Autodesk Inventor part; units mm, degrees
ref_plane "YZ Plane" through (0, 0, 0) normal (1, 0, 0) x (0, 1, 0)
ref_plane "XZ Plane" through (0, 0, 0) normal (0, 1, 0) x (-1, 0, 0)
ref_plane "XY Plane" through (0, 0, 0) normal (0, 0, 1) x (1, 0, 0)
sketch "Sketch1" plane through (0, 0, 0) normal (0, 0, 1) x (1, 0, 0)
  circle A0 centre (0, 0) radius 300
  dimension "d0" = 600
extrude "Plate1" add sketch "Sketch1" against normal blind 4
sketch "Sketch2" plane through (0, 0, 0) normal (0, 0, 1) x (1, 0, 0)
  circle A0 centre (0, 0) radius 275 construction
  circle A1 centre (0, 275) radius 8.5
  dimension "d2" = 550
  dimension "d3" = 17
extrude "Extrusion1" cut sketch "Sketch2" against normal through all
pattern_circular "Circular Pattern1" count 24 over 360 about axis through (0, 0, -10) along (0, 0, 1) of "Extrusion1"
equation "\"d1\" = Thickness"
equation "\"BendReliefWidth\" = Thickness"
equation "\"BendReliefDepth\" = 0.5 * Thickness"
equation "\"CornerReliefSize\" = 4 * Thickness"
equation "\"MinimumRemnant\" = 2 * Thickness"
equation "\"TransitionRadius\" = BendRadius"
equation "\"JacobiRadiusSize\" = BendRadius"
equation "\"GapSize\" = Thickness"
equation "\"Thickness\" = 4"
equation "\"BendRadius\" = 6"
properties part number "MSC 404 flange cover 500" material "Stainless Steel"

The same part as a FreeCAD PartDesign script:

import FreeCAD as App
import Part
import Sketcher
from FreeCAD import Vector
Q = App.Units.Quantity

doc = App.newDocument("Part")
params = doc.addObject("Spreadsheet::Sheet", "Params")
for row, (alias, value) in enumerate([
    ("sketch1_diameter", "600 mm"),
    ("pad1_length", "4 mm"),
    ("sketch2_diameter", "17 mm"),
], start=1):
    params.set(f"A{row}", alias)
    params.set(f"B{row}", "=" + value)
    params.setAlias(f"B{row}", alias)

body = doc.addObject("PartDesign::Body", "Body")

sketch1 = body.newObject("Sketcher::SketchObject", "Sketch")
sketch1.AttachmentSupport = (doc.getObject("XY_Plane"), [""])
sketch1.MapMode = "FlatFace"
sketch1.addGeometry(Part.Circle(Vector(0, 0, 0), Vector(0, 0, 1), 300), False)
sketch1.addConstraint(Sketcher.Constraint("Coincident", 0, 3, -1, 1))
sketch1.addConstraint(Sketcher.Constraint("Diameter", 0, Q("600 mm")))
sketch1.setExpression("Constraints[1]", "Params.sketch1_diameter")
pad1 = body.newObject("PartDesign::Pad", "Pad")
pad1.Profile = sketch1
pad1.setExpression("Length", "Params.pad1_length")
pad1.Reversed = True

sketch2 = body.newObject("Sketcher::SketchObject", "Sketch001")
sketch2.AttachmentSupport = (doc.getObject("XY_Plane"), [""])
sketch2.MapMode = "FlatFace"
sketch2.addGeometry(Part.Circle(Vector(0, 275, 0), Vector(0, 0, 1), 8), False)
sketch2.addConstraint(Sketcher.Constraint("PointOnObject", 0, 3, -2))
sketch2.addConstraint(Sketcher.Constraint("Diameter", 0, Q("17 mm")))
sketch2.addConstraint(Sketcher.Constraint("DistanceY", -1, 1, 0, 3, Q("275 mm")))
sketch2.setExpression("Constraints[1]", "Params.sketch2_diameter")
pocket1 = body.newObject("PartDesign::Pocket", "Pocket")
pocket1.Profile = sketch2
pocket1.Type = "ThroughAll"
doc.recompute()

polarpattern = body.newObject("PartDesign::PolarPattern", "PolarPattern")
polarpattern.Originals = [pocket1]
polarpattern.Axis = (doc.getObject("Z_Axis"), [""])
polarpattern.Angle = 360
polarpattern.Occurrences = 24
body.Tip = polarpattern

doc.recompute()
